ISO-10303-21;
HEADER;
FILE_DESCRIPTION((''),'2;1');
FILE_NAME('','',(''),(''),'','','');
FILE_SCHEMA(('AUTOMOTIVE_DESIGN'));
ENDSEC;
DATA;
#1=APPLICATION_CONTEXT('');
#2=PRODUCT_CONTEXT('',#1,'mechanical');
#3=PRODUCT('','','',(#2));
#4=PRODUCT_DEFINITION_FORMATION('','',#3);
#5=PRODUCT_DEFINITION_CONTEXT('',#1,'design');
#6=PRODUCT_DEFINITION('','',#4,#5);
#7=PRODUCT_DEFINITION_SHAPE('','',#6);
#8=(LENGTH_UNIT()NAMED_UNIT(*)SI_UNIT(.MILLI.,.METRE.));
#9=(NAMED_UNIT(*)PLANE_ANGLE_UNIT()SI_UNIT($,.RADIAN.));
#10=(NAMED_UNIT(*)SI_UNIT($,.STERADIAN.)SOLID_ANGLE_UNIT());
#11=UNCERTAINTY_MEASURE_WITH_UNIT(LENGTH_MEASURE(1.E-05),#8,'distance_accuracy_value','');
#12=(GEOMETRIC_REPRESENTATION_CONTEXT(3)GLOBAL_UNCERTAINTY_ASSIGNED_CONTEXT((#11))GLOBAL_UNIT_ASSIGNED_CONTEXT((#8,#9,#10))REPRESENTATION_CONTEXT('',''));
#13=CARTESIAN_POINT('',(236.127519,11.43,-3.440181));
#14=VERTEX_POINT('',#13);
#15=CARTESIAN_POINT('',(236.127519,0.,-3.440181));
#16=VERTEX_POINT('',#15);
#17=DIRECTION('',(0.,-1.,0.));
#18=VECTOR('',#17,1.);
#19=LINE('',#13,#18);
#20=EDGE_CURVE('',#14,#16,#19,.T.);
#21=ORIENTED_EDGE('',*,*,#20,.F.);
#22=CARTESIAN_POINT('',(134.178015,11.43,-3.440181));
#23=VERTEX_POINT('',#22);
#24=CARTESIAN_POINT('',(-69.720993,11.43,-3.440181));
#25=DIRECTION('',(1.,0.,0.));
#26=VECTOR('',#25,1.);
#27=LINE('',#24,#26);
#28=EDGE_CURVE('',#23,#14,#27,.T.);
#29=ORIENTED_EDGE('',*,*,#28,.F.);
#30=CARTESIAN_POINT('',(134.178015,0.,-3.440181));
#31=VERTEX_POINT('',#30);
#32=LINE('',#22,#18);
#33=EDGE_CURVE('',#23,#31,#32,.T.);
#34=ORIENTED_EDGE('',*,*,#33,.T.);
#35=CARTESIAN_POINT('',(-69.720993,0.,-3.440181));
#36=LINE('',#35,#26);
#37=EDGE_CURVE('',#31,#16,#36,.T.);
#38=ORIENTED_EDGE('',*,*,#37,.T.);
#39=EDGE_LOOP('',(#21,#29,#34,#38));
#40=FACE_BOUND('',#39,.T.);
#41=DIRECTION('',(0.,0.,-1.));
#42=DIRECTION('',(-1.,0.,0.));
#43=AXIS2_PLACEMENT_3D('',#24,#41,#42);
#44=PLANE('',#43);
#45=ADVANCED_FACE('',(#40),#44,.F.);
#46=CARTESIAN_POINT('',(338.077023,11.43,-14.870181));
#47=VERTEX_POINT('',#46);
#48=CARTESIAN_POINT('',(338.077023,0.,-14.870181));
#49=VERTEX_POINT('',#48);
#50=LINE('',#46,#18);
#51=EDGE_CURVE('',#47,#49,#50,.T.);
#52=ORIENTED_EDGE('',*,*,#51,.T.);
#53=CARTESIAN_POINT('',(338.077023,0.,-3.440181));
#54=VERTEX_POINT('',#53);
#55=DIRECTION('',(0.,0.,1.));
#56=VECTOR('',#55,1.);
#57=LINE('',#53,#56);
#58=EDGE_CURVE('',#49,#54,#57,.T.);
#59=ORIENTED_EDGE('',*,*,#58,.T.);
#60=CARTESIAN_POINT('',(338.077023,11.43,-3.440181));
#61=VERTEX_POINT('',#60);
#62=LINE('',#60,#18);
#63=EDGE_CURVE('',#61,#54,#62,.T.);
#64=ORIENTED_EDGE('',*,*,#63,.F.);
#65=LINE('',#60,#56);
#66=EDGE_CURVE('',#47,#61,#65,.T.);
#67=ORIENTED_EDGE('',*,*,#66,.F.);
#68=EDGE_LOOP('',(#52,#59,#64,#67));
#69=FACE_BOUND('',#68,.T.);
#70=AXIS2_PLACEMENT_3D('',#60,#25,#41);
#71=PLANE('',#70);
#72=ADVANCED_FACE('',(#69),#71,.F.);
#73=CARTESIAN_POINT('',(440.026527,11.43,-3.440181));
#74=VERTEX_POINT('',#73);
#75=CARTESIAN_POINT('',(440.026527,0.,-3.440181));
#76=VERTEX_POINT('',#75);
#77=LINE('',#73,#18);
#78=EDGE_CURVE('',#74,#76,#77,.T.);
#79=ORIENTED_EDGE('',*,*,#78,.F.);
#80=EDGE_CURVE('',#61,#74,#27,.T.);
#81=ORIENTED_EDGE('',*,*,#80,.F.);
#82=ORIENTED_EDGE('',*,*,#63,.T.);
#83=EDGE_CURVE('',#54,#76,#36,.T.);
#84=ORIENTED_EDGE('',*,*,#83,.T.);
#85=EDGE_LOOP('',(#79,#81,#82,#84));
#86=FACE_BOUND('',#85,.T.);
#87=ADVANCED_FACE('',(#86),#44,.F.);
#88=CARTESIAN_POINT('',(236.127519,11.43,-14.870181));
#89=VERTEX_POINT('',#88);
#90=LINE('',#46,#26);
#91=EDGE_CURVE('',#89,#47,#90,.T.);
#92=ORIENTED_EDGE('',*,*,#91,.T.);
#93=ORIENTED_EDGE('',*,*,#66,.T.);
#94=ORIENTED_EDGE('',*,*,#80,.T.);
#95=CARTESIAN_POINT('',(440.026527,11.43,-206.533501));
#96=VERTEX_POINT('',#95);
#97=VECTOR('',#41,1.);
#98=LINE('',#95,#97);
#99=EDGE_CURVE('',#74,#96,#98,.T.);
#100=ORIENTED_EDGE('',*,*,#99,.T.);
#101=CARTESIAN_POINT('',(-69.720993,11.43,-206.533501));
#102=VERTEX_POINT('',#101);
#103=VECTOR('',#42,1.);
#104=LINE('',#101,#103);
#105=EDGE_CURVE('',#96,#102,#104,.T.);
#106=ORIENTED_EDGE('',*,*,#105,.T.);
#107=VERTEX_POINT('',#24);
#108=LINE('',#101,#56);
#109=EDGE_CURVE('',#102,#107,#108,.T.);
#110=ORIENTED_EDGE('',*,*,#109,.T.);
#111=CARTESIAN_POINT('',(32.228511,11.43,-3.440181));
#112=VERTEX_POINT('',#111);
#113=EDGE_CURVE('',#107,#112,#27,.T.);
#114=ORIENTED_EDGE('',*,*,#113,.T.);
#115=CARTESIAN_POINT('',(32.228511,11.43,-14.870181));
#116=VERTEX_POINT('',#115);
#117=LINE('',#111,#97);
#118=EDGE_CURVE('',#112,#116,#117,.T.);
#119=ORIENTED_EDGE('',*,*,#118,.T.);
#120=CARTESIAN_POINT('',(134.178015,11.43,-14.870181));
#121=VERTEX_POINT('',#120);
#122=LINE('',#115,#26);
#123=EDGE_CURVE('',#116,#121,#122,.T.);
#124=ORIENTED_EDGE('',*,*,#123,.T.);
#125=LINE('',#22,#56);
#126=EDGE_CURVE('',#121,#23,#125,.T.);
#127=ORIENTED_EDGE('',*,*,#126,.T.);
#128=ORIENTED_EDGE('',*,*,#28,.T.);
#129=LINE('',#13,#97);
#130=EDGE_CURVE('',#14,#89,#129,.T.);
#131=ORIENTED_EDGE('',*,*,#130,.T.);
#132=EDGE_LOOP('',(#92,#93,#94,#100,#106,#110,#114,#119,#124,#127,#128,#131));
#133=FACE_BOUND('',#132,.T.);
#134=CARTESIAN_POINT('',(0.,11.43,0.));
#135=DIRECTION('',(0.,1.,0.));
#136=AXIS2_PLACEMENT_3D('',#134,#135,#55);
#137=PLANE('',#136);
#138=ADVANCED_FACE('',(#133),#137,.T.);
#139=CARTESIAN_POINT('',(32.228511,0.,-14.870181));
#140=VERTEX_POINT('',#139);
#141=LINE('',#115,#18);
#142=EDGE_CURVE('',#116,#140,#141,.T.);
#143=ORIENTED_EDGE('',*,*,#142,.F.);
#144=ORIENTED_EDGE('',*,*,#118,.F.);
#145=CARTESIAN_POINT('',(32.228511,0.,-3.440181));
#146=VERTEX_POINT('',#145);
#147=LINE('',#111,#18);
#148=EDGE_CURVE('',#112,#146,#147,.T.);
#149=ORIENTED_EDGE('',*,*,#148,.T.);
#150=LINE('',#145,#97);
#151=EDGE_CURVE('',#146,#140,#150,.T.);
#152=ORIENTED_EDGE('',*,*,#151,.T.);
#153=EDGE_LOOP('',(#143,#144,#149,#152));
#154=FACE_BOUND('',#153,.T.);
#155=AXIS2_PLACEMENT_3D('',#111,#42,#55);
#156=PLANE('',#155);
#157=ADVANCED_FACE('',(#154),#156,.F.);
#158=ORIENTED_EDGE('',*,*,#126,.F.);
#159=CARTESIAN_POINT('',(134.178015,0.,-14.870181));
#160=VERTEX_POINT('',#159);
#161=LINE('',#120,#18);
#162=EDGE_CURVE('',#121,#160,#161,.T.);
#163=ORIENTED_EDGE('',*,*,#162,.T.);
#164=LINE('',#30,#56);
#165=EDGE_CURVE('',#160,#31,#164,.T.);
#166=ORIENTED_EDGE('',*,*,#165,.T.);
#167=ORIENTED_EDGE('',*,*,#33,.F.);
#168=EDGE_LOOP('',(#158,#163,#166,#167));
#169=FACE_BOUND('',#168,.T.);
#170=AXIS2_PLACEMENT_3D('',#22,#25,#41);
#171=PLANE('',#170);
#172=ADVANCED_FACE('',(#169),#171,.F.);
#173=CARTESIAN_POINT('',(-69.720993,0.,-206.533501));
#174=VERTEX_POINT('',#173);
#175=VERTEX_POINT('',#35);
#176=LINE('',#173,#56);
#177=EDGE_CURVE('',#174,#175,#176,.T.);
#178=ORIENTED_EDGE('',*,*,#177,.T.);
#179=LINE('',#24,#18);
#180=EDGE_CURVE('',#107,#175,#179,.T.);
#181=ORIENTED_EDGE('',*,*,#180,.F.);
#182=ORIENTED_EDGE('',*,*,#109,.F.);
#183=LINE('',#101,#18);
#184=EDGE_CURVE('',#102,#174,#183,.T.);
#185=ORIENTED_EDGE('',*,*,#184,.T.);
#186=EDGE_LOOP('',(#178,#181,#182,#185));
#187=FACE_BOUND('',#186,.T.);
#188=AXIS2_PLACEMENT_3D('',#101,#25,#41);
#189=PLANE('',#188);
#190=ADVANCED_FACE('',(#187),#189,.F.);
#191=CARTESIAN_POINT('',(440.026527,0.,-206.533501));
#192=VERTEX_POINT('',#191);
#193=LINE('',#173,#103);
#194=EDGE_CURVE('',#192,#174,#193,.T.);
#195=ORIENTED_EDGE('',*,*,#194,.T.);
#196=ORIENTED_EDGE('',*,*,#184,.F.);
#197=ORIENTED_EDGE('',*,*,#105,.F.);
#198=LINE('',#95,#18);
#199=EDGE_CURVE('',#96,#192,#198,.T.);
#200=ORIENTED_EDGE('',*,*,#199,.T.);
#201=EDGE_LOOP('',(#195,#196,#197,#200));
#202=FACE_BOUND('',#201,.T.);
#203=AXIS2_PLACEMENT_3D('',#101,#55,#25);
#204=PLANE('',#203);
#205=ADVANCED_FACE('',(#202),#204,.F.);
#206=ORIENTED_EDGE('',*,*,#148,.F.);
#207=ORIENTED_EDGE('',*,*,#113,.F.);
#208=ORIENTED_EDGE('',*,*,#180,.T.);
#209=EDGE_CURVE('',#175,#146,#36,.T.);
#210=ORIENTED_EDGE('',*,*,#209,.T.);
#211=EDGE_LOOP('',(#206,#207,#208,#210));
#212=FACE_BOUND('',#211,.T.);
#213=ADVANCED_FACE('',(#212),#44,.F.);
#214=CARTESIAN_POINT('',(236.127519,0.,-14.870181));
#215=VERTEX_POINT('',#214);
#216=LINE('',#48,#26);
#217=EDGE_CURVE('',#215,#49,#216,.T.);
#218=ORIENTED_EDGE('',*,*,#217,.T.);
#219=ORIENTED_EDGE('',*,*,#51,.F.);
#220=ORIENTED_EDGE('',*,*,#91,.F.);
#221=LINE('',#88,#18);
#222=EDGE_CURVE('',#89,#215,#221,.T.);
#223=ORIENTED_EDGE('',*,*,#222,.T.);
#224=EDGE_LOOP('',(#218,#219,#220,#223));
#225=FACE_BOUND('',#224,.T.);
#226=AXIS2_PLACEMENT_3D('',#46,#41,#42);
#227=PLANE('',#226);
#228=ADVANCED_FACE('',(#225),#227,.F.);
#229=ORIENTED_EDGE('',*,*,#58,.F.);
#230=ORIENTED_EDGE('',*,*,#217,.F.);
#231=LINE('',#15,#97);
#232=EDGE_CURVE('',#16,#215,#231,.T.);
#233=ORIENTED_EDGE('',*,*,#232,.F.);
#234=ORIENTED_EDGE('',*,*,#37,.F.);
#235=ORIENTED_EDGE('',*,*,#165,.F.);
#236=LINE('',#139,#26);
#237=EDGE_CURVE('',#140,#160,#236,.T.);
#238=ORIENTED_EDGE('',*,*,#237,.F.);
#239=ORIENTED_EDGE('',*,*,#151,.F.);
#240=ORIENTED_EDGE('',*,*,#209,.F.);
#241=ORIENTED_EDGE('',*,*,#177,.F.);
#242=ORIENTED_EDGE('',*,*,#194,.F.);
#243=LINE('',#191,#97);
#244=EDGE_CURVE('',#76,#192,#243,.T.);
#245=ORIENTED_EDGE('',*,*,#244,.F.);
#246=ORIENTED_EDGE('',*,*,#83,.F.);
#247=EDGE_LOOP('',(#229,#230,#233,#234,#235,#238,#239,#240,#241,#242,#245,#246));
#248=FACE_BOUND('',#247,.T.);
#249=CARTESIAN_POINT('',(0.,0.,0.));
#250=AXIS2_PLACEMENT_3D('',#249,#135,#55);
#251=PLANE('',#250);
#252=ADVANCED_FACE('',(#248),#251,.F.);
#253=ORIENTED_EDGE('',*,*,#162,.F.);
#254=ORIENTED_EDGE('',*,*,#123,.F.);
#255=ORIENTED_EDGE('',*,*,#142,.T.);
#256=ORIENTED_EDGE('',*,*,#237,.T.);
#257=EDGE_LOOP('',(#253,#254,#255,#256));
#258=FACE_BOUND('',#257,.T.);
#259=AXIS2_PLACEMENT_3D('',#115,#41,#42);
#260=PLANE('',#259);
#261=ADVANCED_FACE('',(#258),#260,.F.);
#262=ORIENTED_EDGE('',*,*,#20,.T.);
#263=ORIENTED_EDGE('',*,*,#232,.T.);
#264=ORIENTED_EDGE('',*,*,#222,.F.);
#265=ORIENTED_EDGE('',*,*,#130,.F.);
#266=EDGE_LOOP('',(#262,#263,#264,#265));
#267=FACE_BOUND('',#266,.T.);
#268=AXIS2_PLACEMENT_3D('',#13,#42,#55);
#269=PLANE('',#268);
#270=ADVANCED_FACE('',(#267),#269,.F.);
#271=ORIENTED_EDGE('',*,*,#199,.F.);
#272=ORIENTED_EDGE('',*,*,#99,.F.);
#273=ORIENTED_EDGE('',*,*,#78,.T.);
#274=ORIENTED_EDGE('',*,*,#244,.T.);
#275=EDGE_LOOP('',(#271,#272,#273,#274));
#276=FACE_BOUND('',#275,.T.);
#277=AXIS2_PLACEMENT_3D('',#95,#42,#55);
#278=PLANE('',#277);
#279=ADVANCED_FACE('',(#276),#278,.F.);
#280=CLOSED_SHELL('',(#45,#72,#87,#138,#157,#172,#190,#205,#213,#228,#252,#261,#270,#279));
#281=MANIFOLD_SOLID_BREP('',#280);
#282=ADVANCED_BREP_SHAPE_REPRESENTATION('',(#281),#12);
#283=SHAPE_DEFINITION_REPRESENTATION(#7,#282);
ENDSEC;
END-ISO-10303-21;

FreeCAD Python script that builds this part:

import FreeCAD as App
import Part
import Sketcher

V = App.Vector
Q = App.Units.Quantity


def add_polygon(sketch, points):
    """Adds a closed chain of lines whose ends are joined by coincident constraints."""
    first, n = sketch.GeometryCount, len(points)
    for a, b in zip(points, points[1:] + points[:1]):
        sketch.addGeometry(Part.LineSegment(App.Vector(*a, 0), App.Vector(*b, 0)), False)
    for i in range(n):
        sketch.addConstraint(Sketcher.Constraint("Coincident", first + i, 2, first + (i + 1) % n, 1))

doc = App.newDocument("Part")
params = doc.addObject("Spreadsheet::Sheet", "Params")
for row, (alias, value) in enumerate([
    ("pad1_length", "0.45 in"),
    ("sketch2_height", "0.45 in"),
], start=1):
    params.set(f"A{row}", alias)
    params.set(f"B{row}", "=" + value)
    params.setAlias(f"B{row}", alias)

body = doc.addObject("PartDesign::Body", "Body")

# Sketch on XZ plane
sketch1 = body.newObject("Sketcher::SketchObject", "Sketch")
sketch1.AttachmentSupport = (doc.getObject("XZ_Plane"), [""])
sketch1.MapMode = "FlatFace"
add_polygon(sketch1, [(-70, -207), (-70, -3), (440, -3), (440, -207)])  # lines 0-3
sketch1.addConstraint([
    Sketcher.Constraint("Vertical", 0),
    Sketcher.Constraint("Horizontal", 1),
    Sketcher.Constraint("Vertical", 2),
    Sketcher.Constraint("Horizontal", 3),
    Sketcher.Constraint("DistanceX", 1, 1, 1, 2, Q("20.0688 in")),
    Sketcher.Constraint("DistanceY", 0, 1, 0, 2, Q("7.9958 in")),
    Sketcher.Constraint("DistanceY", 2, 2, -1, 1, 206.533501),
    Sketcher.Constraint("DistanceX", 0, 2, -1, 1, 69.720993),
])
pad1 = body.newObject("PartDesign::Pad", "Pad")
pad1.Profile = sketch1
pad1.setExpression("Length", "Params.pad1_length")
pad1.Reversed = True

# Sketch on XZ plane
sketch2 = body.newObject("Sketcher::SketchObject", "Sketch001")
sketch2.AttachmentSupport = (doc.getObject("XZ_Plane"), [""])
sketch2.MapMode = "FlatFace"
add_polygon(sketch2, [(236, -3), (236, -15), (338, -15), (338, -3)])  # lines 0-3
add_polygon(sketch2, [(32, -3), (32, -15), (134, -15), (134, -3)])  # lines 4-7
sketch2.addConstraint([
    Sketcher.Constraint("Vertical", 0),
    Sketcher.Constraint("Horizontal", 1),
    Sketcher.Constraint("Vertical", 2),
    Sketcher.Constraint("Horizontal", 3),
    Sketcher.Constraint("Vertical", 4),
    Sketcher.Constraint("Horizontal", 5),
    Sketcher.Constraint("Vertical", 6),
    Sketcher.Constraint("Horizontal", 7),
    Sketcher.Constraint("Horizontal", 1, 2, 4, 2),
    Sketcher.Constraint("Horizontal", 3, 2, 6, 2),
    Sketcher.Constraint("Equal", 3, 5),
    Sketcher.Constraint("DistanceY", 0, 2, 0, 1, Q("0.45 in")),
    Sketcher.Constraint("DistanceX", 1, 1, 1, 2, 101.949504),
    Sketcher.Constraint("DistanceX", -1, 1, 0, 2, 236.127519),
    Sketcher.Constraint("DistanceY", 0, 2, -1, 1, 14.870181),
    Sketcher.Constraint("DistanceX", -1, 1, 4, 2, 32.228511),
])
sketch2.setExpression("Constraints[19]", "Params.sketch2_height")
pocket1 = body.newObject("PartDesign::Pocket", "Pocket")
pocket1.Profile = sketch2
pocket1.Type = "ThroughAll"

doc.recompute()
